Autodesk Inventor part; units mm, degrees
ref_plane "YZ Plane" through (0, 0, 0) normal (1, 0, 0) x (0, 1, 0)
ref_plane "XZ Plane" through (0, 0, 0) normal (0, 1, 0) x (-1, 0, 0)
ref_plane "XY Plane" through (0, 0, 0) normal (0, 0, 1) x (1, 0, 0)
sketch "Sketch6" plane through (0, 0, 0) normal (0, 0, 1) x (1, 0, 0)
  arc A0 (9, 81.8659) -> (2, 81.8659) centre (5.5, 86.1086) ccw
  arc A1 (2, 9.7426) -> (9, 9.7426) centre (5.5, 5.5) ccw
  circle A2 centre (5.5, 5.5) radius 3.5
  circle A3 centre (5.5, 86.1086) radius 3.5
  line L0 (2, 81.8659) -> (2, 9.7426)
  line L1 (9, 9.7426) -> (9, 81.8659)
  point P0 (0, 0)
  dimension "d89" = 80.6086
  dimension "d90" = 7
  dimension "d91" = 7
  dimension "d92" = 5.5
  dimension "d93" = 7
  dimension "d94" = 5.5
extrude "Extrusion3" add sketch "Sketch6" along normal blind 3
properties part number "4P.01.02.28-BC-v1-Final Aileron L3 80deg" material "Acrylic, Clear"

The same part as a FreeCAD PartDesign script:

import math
import FreeCAD as App
import Part
import Sketcher
Q = App.Units.Quantity

doc = App.newDocument("Part")
body = doc.addObject("PartDesign::Body", "Body")

# Sketch on XY plane
sketch1 = doc.addObject("Sketcher::SketchObject", "Sketch")
body.addObject(sketch1)
sketch1.AttachmentSupport = (doc.XY_Plane, [""])
sketch1.MapMode = "FlatFace"
sketch1.addGeometry([
    Part.LineSegment(App.Vector(9, 9.7, 0), App.Vector(9, 81.9, 0)),  # 0
    Part.ArcOfCircle(Part.Circle(App.Vector(5.5, 86.1, 0), App.Vector(0, 0, 1), 5.5), math.radians(-50), math.radians(230)),  # 1
    Part.LineSegment(App.Vector(2, 81.9, 0), App.Vector(2, 9.7, 0)),  # 2
    Part.ArcOfCircle(Part.Circle(App.Vector(5.5, 5.5, 0), App.Vector(0, 0, 1), 5.5), math.radians(130), math.radians(410)),  # 3
    Part.Circle(App.Vector(5.5, 5.5, 0), App.Vector(0, 0, 1), 3.5),  # 4
    Part.Circle(App.Vector(5.5, 86.1, 0), App.Vector(0, 0, 1), 3.5),  # 5
], False)
sketch1.addConstraint([
    Sketcher.Constraint("Coincident", 0, 2, 1, 1),
    Sketcher.Constraint("Coincident", 1, 2, 2, 1),
    Sketcher.Constraint("Coincident", 2, 2, 3, 1),
    Sketcher.Constraint("Coincident", 3, 2, 0, 1),
    Sketcher.Constraint("Vertical", 0),
    Sketcher.Constraint("Vertical", 2),
    Sketcher.Constraint("Coincident", 4, 3, 3, 3),
    Sketcher.Constraint("Coincident", 5, 3, 1, 3),
    Sketcher.Constraint("Equal", 1, 3),
    Sketcher.Constraint("Equal", 4, 5),
    Sketcher.Constraint("Horizontal", 0, 2, 1, 2),
    Sketcher.Constraint("Horizontal", 2, 2, 3, 2),
    Sketcher.Constraint("Diameter", 4, Q("7 mm")),
    Sketcher.Constraint("Radius", 1, Q("5.5 mm")),
    Sketcher.Constraint("DistanceX", 1, 2, 0, 2, Q("7 mm")),
    Sketcher.Constraint("DistanceX", -1, 1, 1, 3, Q("5.5 mm")),
    Sketcher.Constraint("DistanceY", -1, 1, 3, 3, Q("5.5 mm")),
    Sketcher.Constraint("DistanceY", 3, 3, 1, 3, Q("80.6086 mm")),
])
pad1 = doc.addObject("PartDesign::Pad", "Pad")
body.addObject(pad1)
pad1.Profile = sketch1
pad1.Length = 3

doc.recompute()
